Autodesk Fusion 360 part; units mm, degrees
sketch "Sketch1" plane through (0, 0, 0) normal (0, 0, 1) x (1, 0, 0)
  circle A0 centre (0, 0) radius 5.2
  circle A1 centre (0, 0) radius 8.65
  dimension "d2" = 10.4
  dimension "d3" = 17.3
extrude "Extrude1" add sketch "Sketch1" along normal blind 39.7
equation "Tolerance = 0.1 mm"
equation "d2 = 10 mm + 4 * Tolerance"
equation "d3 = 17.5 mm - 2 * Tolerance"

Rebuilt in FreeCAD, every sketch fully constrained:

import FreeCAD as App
import Part
import Sketcher
from FreeCAD import Vector

doc = App.newDocument("Part")
params = doc.addObject("Spreadsheet::Sheet", "Params")
for row, (alias, value) in enumerate([
    ("sketch1_diameter", "17.3 mm"),
    ("sketch1_diameter2", "10.4 mm"),
    ("pad1_length", "39.7 mm"),
], start=1):
    params.set(f"A{row}", alias)
    params.set(f"B{row}", "=" + value)
    params.setAlias(f"B{row}", alias)

body = doc.addObject("PartDesign::Body", "Body")

# Sketch on XY plane
sketch1 = doc.addObject("Sketcher::SketchObject", "Sketch")
body.addObject(sketch1)
sketch1.AttachmentSupport = (doc.XY_Plane, [""])
sketch1.MapMode = "FlatFace"
sketch1.addGeometry(Part.Circle(Vector(0, 0, 0), Vector(0, 0, 1), 9), False)
sketch1.addGeometry(Part.Circle(Vector(0, 0, 0), Vector(0, 0, 1), 5), False)
sketch1.addConstraint(Sketcher.Constraint("Coincident", 0, 3, -1, 1))
sketch1.addConstraint(Sketcher.Constraint("Coincident", 1, 3, -1, 1))
sketch1.addConstraint(Sketcher.Constraint("Diameter", 0, 17.3))
sketch1.addConstraint(Sketcher.Constraint("Diameter", 1, 10.4))
sketch1.setExpression("Constraints[2]", "Params.sketch1_diameter")
sketch1.setExpression("Constraints[3]", "Params.sketch1_diameter2")
pad1 = doc.addObject("PartDesign::Pad", "Pad")
body.addObject(pad1)
pad1.Profile = sketch1
pad1.setExpression("Length", "Params.pad1_length")

doc.recompute()
